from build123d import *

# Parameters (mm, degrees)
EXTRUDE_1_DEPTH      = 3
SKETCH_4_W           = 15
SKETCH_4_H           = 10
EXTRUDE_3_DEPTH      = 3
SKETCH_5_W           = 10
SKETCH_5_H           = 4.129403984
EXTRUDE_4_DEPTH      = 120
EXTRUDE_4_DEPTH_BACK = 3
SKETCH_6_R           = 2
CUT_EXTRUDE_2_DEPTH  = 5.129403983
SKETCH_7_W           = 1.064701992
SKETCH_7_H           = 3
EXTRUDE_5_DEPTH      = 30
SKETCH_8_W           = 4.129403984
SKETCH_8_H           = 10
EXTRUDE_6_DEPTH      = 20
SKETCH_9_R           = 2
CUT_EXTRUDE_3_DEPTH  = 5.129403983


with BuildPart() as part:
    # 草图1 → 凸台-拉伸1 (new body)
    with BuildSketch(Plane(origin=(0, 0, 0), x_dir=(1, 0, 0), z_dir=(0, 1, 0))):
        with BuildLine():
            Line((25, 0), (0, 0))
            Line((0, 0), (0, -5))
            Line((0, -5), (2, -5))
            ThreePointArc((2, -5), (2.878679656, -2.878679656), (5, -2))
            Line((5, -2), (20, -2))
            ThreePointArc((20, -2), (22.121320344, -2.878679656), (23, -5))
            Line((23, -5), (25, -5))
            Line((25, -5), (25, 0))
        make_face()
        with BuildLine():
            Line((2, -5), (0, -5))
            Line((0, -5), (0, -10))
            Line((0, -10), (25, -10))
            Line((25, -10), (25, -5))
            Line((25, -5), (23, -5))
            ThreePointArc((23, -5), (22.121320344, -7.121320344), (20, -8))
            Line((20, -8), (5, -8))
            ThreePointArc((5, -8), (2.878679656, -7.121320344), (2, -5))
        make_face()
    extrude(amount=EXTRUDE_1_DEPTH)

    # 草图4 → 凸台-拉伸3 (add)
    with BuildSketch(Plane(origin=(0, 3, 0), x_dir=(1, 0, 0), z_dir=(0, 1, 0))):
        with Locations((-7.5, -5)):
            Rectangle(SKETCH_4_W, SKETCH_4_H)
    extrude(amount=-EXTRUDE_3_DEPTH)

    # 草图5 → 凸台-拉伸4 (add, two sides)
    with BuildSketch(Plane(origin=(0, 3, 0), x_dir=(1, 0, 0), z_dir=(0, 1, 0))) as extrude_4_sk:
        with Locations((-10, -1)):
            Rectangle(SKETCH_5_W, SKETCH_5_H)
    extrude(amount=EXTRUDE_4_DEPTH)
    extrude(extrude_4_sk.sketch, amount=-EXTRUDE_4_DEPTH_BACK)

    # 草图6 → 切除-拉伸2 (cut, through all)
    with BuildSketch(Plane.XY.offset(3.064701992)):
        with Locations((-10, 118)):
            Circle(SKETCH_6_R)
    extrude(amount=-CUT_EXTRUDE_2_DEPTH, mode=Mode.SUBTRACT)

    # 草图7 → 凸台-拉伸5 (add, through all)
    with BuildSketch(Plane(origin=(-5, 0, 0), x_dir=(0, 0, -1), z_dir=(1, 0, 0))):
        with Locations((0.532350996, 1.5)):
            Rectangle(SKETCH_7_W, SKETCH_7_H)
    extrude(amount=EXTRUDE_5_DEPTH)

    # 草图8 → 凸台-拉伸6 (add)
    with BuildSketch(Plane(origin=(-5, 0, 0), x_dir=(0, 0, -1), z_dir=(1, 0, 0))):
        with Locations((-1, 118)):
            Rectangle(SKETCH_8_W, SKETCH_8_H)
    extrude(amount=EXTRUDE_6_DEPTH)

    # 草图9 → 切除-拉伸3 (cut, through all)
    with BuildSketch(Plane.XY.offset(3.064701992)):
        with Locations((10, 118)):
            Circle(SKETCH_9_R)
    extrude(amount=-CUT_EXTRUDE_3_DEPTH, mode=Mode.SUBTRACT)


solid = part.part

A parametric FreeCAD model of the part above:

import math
import FreeCAD as App
import Part
import Sketcher
Q = App.Units.Quantity


def add_polygon(sketch, points):
    """Adds a closed chain of lines whose ends are joined by coincident constraints."""
    first, n = sketch.GeometryCount, len(points)
    for a, b in zip(points, points[1:] + points[:1]):
        sketch.addGeometry(Part.LineSegment(App.Vector(*a, 0), App.Vector(*b, 0)), False)
    for i in range(n):
        sketch.addConstraint(Sketcher.Constraint("Coincident", first + i, 2, first + (i + 1) % n, 1))

doc = App.newDocument("Part")
params = doc.addObject("Spreadsheet::Sheet", "Params")
for row, (alias, value) in enumerate([
    ("sketch1_radius", "3 mm"),
    ("sketch1_width", "25 mm"),
    ("sketch1_width2", "15 mm"),
    ("sketch1_height", "10 mm"),
    ("pad1_length", "3 mm"),
    ("sketch2_width", "15 mm"),
    ("sketch2_height", "10 mm"),
    ("pad2_length", "3 mm"),
    ("sketch3_width", "10 mm"),
    ("pad3_length", "120 mm"),
    ("pad3_length2", "3 mm"),
    ("sketch4_diameter", "4 mm"),
    ("sketch5_width", "3 mm"),
    ("pad4_length", "30 mm"),
    ("sketch6_width", "10 mm"),
    ("pad5_length", "20 mm"),
    ("sketch7_diameter", "4 mm"),
], start=1):
    params.set(f"A{row}", alias)
    params.set(f"B{row}", "=" + value)
    params.setAlias(f"B{row}", alias)

body = doc.addObject("PartDesign::Body", "Body")

sketch1 = doc.addObject("Sketcher::SketchObject", "Sketch")
body.addObject(sketch1)
sketch1.AttachmentSupport = (doc.XZ_Plane, [""])
sketch1.MapMode = "FlatFace"
add_polygon(sketch1, [(25, 0), (0, 0), (0, 10), (25, 10)])
sketch1.addGeometry(Part.ArcOfCircle(Part.Circle(App.Vector(5, 5, 0), App.Vector(0, 0, 1), 3), math.radians(180), math.radians(270)), False)
sketch1.addGeometry(Part.LineSegment(App.Vector(5, 2, 0), App.Vector(20, 2, 0)), False)
sketch1.addGeometry(Part.ArcOfCircle(Part.Circle(App.Vector(20, 5, 0), App.Vector(0, 0, 1), 3), math.radians(-90), math.radians(0)), False)
sketch1.addGeometry(Part.ArcOfCircle(Part.Circle(App.Vector(20, 5, 0), App.Vector(0, 0, 1), 3), math.radians(0), math.radians(90)), False)
sketch1.addGeometry(Part.LineSegment(App.Vector(20, 8, 0), App.Vector(5, 8, 0)), False)
sketch1.addGeometry(Part.ArcOfCircle(Part.Circle(App.Vector(5, 5, 0), App.Vector(0, 0, 1), 3), math.radians(90), math.radians(180)), False)
sketch1.addConstraint([
    Sketcher.Constraint("Tangent", 4, 2, 5, 1),
    Sketcher.Constraint("Tangent", 5, 2, 6, 1),
    Sketcher.Constraint("Tangent", 6, 2, 7, 1),
    Sketcher.Constraint("Tangent", 7, 2, 8, 1),
    Sketcher.Constraint("Tangent", 8, 2, 9, 1),
    Sketcher.Constraint("Tangent", 9, 2, 4, 1),
    Sketcher.Constraint("Horizontal", 0),
    Sketcher.Constraint("Vertical", 1),
    Sketcher.Constraint("Horizontal", 2),
    Sketcher.Constraint("Vertical", 3),
    Sketcher.Constraint("Horizontal", 5),
    Sketcher.Constraint("Horizontal", 8),
    Sketcher.Constraint("Coincident", 0, 2, -1, 1),
    Sketcher.Constraint("Equal", 4, 6),
    Sketcher.Constraint("Equal", 6, 7),
    Sketcher.Constraint("Horizontal", 9, 3, 6, 2),
    Sketcher.Constraint("Horizontal", 6, 2, 9, 2),
    Sketcher.Constraint("Radius", 4, Q("3 mm")),
    Sketcher.Constraint("DistanceX", 0, 2, 0, 1, Q("25 mm")),
    Sketcher.Constraint("DistanceX", 5, 1, 5, 2, Q("15 mm")),
    Sketcher.Constraint("DistanceY", 1, 1, 1, 2, Q("10 mm")),
    Sketcher.Constraint("DistanceX", -1, 1, 4, 3, Q("5 mm")),
    Sketcher.Constraint("DistanceY", -1, 1, 4, 3, Q("5 mm")),
])
sketch1.setExpression("Constraints[21]", "Params.sketch1_radius")
sketch1.setExpression("Constraints[22]", "Params.sketch1_width")
sketch1.setExpression("Constraints[23]", "Params.sketch1_width2")
sketch1.setExpression("Constraints[24]", "Params.sketch1_height")
pad1 = doc.addObject("PartDesign::Pad", "Pad")
body.addObject(pad1)
pad1.Profile = sketch1
pad1.setExpression("Length", "Params.pad1_length")
pad1.Reversed = True

sketch2 = doc.addObject("Sketcher::SketchObject", "Sketch001")
body.addObject(sketch2)
sketch2.AttachmentSupport = (doc.XZ_Plane, [""])
sketch2.MapMode = "FlatFace"
sketch2.AttachmentOffset = App.Placement(App.Vector(0, 0, -3), App.Rotation())
add_polygon(sketch2, [(-15, 0), (-15, 10), (0, 10), (0, 0)])
sketch2.addConstraint([
    Sketcher.Constraint("Vertical", 0),
    Sketcher.Constraint("Horizontal", 1),
    Sketcher.Constraint("Vertical", 2),
    Sketcher.Constraint("Horizontal", 3),
    Sketcher.Constraint("Coincident", 2, 2, -1, 1),
    Sketcher.Constraint("DistanceX", 1, 1, 1, 2, Q("15 mm")),
    Sketcher.Constraint("DistanceY", 0, 1, 0, 2, Q("10 mm")),
])
sketch2.setExpression("Constraints[9]", "Params.sketch2_width")
sketch2.setExpression("Constraints[10]", "Params.sketch2_height")
pad2 = doc.addObject("PartDesign::Pad", "Pad001")
body.addObject(pad2)
pad2.Profile = sketch2
pad2.setExpression("Length", "Params.pad2_length")

sketch3 = doc.addObject("Sketcher::SketchObject", "Sketch002")
body.addObject(sketch3)
sketch3.AttachmentSupport = (doc.XZ_Plane, [""])
sketch3.MapMode = "FlatFace"
sketch3.AttachmentOffset = App.Placement(App.Vector(0, 0, -3), App.Rotation())
add_polygon(sketch3, [(-15, -1.1), (-15, 3.1), (-5, 3.1), (-5, -1.1)])
sketch3.addConstraint([
    Sketcher.Constraint("Vertical", 0),
    Sketcher.Constraint("Horizontal", 1),
    Sketcher.Constraint("Vertical", 2),
    Sketcher.Constraint("Horizontal", 3),
    Sketcher.Constraint("DistanceX", 1, 1, 1, 2, Q("10 mm")),
    Sketcher.Constraint("DistanceX", 0, 2, -1, 1, Q("15 mm")),
    Sketcher.Constraint("DistanceY", -1, 1, 0, 2, Q("3.064702 mm")),
    Sketcher.Constraint("DistanceY", 2, 2, -1, 1, Q("1.064702 mm")),
])
sketch3.setExpression("Constraints[8]", "Params.sketch3_width")
pad3 = doc.addObject("PartDesign::Pad", "Pad002")
body.addObject(pad3)
pad3.Profile = sketch3
pad3.Type = "TwoLengths"
pad3.setExpression("Length", "Params.pad3_length")
pad3.setExpression("Length2", "Params.pad3_length2")
pad3.Reversed = True

sketch4 = doc.addObject("Sketcher::SketchObject", "Sketch003")
body.addObject(sketch4)
sketch4.AttachmentSupport = (doc.XY_Plane, [""])
sketch4.MapMode = "FlatFace"
sketch4.AttachmentOffset = App.Placement(App.Vector(0, 0, 3.064702), App.Rotation())
sketch4.addGeometry(Part.Circle(App.Vector(-10, 118, 0), App.Vector(0, 0, 1), 2), False)
sketch4.addConstraint([
    Sketcher.Constraint("Diameter", 0, Q("4 mm")),
    Sketcher.Constraint("DistanceX", 0, 3, -1, 1, Q("10 mm")),
    Sketcher.Constraint("DistanceY", -1, 1, 0, 3, Q("118 mm")),
])
sketch4.setExpression("Constraints[0]", "Params.sketch4_diameter")
pocket1 = doc.addObject("PartDesign::Pocket", "Pocket")
body.addObject(pocket1)
pocket1.Profile = sketch4
pocket1.Type = "ThroughAll"

sketch5 = doc.addObject("Sketcher::SketchObject", "Sketch004")
body.addObject(sketch5)
sketch5.AttachmentSupport = (doc.YZ_Plane, [""])
sketch5.MapMode = "FlatFace"
sketch5.AttachmentOffset = App.Placement(App.Vector(0, 0, -5), App.Rotation())
add_polygon(sketch5, [(3, 0), (0, 0), (0, -1.1), (3, -1.1)])
sketch5.addConstraint([
    Sketcher.Constraint("Horizontal", 0),
    Sketcher.Constraint("Vertical", 1),
    Sketcher.Constraint("Horizontal", 2),
    Sketcher.Constraint("Vertical", 3),
    Sketcher.Constraint("Coincident", 0, 2, -1, 1),
    Sketcher.Constraint("DistanceX", 0, 2, 0, 1, Q("3 mm")),
    Sketcher.Constraint("DistanceY", 1, 2, 1, 1, Q("1.064702 mm")),
])
sketch5.setExpression("Constraints[9]", "Params.sketch5_width")
pad4 = doc.addObject("PartDesign::Pad", "Pad003")
body.addObject(pad4)
pad4.Profile = sketch5
pad4.setExpression("Length", "Params.pad4_length")

sketch6 = doc.addObject("Sketcher::SketchObject", "Sketch005")
body.addObject(sketch6)
sketch6.AttachmentSupport = (doc.YZ_Plane, [""])
sketch6.MapMode = "FlatFace"
sketch6.AttachmentOffset = App.Placement(App.Vector(0, 0, -5), App.Rotation())
add_polygon(sketch6, [(123, 3.1), (113, 3.1), (113, -1.1), (123, -1.1)])
sketch6.addConstraint([
    Sketcher.Constraint("Horizontal", 0),
    Sketcher.Constraint("Vertical", 1),
    Sketcher.Constraint("Horizontal", 2),
    Sketcher.Constraint("Vertical", 3),
    Sketcher.Constraint("DistanceX", 0, 2, 0, 1, Q("10 mm")),
    Sketcher.Constraint("DistanceX", -1, 1, 0, 2, Q("113 mm")),
    Sketcher.Constraint("DistanceY", -1, 1, 0, 2, Q("3.064702 mm")),
    Sketcher.Constraint("DistanceY", 1, 2, -1, 1, Q("1.064702 mm")),
])
sketch6.setExpression("Constraints[8]", "Params.sketch6_width")
pad5 = doc.addObject("PartDesign::Pad", "Pad004")
body.addObject(pad5)
pad5.Profile = sketch6
pad5.setExpression("Length", "Params.pad5_length")

sketch7 = doc.addObject("Sketcher::SketchObject", "Sketch006")
body.addObject(sketch7)
sketch7.AttachmentSupport = (doc.XY_Plane, [""])
sketch7.MapMode = "FlatFace"
sketch7.AttachmentOffset = App.Placement(App.Vector(0, 0, 3.064702), App.Rotation())
sketch7.addGeometry(Part.Circle(App.Vector(10, 118, 0), App.Vector(0, 0, 1), 2), False)
sketch7.addConstraint([
    Sketcher.Constraint("Diameter", 0, Q("4 mm")),
    Sketcher.Constraint("DistanceX", -1, 1, 0, 3, Q("10 mm")),
    Sketcher.Constraint("DistanceY", -1, 1, 0, 3, Q("118 mm")),
])
sketch7.setExpression("Constraints[0]", "Params.sketch7_diameter")
pocket2 = doc.addObject("PartDesign::Pocket", "Pocket001")
body.addObject(pocket2)
pocket2.Profile = sketch7
pocket2.Type = "ThroughAll"

doc.recompute()
